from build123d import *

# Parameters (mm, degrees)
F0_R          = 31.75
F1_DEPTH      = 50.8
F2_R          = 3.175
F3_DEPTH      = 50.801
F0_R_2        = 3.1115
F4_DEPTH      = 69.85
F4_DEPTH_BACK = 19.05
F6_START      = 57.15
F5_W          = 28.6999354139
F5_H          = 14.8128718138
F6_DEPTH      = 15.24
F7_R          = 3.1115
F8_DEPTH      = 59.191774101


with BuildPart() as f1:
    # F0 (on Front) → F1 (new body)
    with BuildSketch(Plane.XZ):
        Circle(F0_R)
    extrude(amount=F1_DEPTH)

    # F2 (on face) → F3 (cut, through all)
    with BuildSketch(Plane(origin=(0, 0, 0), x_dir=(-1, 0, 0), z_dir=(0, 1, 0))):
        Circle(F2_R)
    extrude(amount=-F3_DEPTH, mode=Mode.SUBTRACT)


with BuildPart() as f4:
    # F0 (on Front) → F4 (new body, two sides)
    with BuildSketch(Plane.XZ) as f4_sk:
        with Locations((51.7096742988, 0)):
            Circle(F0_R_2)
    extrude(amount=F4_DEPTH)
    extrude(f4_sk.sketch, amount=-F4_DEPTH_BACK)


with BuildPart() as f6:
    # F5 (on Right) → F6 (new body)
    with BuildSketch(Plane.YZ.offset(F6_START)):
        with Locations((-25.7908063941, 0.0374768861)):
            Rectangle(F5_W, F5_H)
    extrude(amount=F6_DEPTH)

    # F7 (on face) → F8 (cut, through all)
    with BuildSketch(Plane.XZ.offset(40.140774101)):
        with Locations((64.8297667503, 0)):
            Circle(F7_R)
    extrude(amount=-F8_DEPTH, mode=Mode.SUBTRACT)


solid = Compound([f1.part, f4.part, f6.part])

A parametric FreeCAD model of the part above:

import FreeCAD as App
import Part
import Sketcher

V = App.Vector
Q = App.Units.Quantity

doc = App.newDocument("Part")
params = doc.addObject("Spreadsheet::Sheet", "Params")
for row, (alias, value) in enumerate([
    ("sketch1_diameter", "2.5 in"),
    ("pad1_length", "2 in"),
    ("sketch2_diameter", "0.25 in"),
    ("sketch3_diameter", "0.245 in"),
    ("pad2_length", "2.75 in"),
    ("pad2_length2", "0.75 in"),
    ("pad3_length", "0.6 in"),
    ("sketch5_diameter", "0.245 in"),
], start=1):
    params.set(f"A{row}", alias)
    params.set(f"B{row}", "=" + value)
    params.setAlias(f"B{row}", alias)

body = doc.addObject("PartDesign::Body", "Body")

# Sketch on XZ plane
sketch1 = doc.addObject("Sketcher::SketchObject", "Sketch")
body.addObject(sketch1)
sketch1.AttachmentSupport = (doc.XZ_Plane, [""])
sketch1.MapMode = "FlatFace"
sketch1.addGeometry(Part.Circle(V(0, 0, 0), V(0, 0, 1), 32), False)
sketch1.addConstraint([
    Sketcher.Constraint("Coincident", 0, 3, -1, 1),
    Sketcher.Constraint("Diameter", 0, Q("2.5 in")),
])
sketch1.setExpression("Constraints[1]", "Params.sketch1_diameter")
pad1 = doc.addObject("PartDesign::Pad", "Pad")
body.addObject(pad1)
pad1.Profile = sketch1
pad1.setExpression("Length", "Params.pad1_length")

# Sketch on XZ plane
sketch2 = doc.addObject("Sketcher::SketchObject", "Sketch001")
body.addObject(sketch2)
sketch2.AttachmentSupport = (doc.XZ_Plane, [""])
sketch2.MapMode = "FlatFace"
sketch2.addGeometry(Part.Circle(V(0, 0, 0), V(0, 0, 1), 3.2), False)
sketch2.addConstraint([
    Sketcher.Constraint("Coincident", 0, 3, -1, 1),
    Sketcher.Constraint("Diameter", 0, Q("0.25 in")),
])
sketch2.setExpression("Constraints[1]", "Params.sketch2_diameter")
pocket1 = doc.addObject("PartDesign::Pocket", "Pocket")
body.addObject(pocket1)
pocket1.Profile = sketch2
pocket1.Type = "ThroughAll"
pocket1.Reversed = True
body2 = doc.addObject("PartDesign::Body", "Body001")

# Sketch on XZ plane
sketch3 = doc.addObject("Sketcher::SketchObject", "Sketch002")
body2.addObject(sketch3)
sketch3.AttachmentSupport = (doc.getObject("XZ_Plane001"), [""])
sketch3.MapMode = "FlatFace"
sketch3.addGeometry(Part.Circle(V(51.7, 0, 0), V(0, 0, 1), 3.1), False)
sketch3.addConstraint([
    Sketcher.Constraint("PointOnObject", 0, 3, -1),
    Sketcher.Constraint("Diameter", 0, Q("0.245 in")),
    Sketcher.Constraint("DistanceX", -1, 1, 0, 3, 51.709674),
])
sketch3.setExpression("Constraints[1]", "Params.sketch3_diameter")
pad2 = doc.addObject("PartDesign::Pad", "Pad001")
body2.addObject(pad2)
pad2.Profile = sketch3
pad2.Type = "TwoLengths"
pad2.setExpression("Length", "Params.pad2_length")
pad2.setExpression("Length2", "Params.pad2_length2")
body3 = doc.addObject("PartDesign::Body", "Body002")

# Sketch on YZ plane
sketch4 = doc.addObject("Sketcher::SketchObject", "Sketch003")
body3.addObject(sketch4)
sketch4.AttachmentSupport = (doc.getObject("YZ_Plane002"), [""])
sketch4.MapMode = "FlatFace"
sketch4.AttachmentOffset = App.Placement(V(0, 0, 2.25 * 25.4), App.Rotation())
sketch4.addGeometry([
    Part.LineSegment(V(-40, 7, 0), V(-40, -7, 0)),
    Part.LineSegment(V(-40, -7, 0), V(-11, -7, 0)),
    Part.LineSegment(V(-11, -7, 0), V(-11, 7, 0)),
    Part.LineSegment(V(-11, 7, 0), V(-40, 7, 0)),
], False)
sketch4.addConstraint([
    Sketcher.Constraint("Coincident", 0, 2, 1, 1),
    Sketcher.Constraint("Coincident", 1, 2, 2, 1),
    Sketcher.Constraint("Coincident", 2, 2, 3, 1),
    Sketcher.Constraint("Coincident", 3, 2, 0, 1),
    Sketcher.Constraint("Vertical", 0),
    Sketcher.Constraint("Horizontal", 1),
    Sketcher.Constraint("Vertical", 2),
    Sketcher.Constraint("Horizontal", 3),
    Sketcher.Constraint("DistanceY", 0, 2, 0, 1, 14.812872),
    Sketcher.Constraint("DistanceX", 1, 1, 1, 2, 28.699935),
    Sketcher.Constraint("DistanceY", 0, 2, -1, 1, 7.368959),
    Sketcher.Constraint("DistanceX", 1, 2, -1, 1, 11.440839),
])
pad3 = doc.addObject("PartDesign::Pad", "Pad002")
body3.addObject(pad3)
pad3.Profile = sketch4
pad3.setExpression("Length", "Params.pad3_length")

# Sketch on XZ plane
sketch5 = doc.addObject("Sketcher::SketchObject", "Sketch004")
body3.addObject(sketch5)
sketch5.AttachmentSupport = (doc.getObject("XZ_Plane002"), [""])
sketch5.MapMode = "FlatFace"
sketch5.AttachmentOffset = App.Placement(V(0, 0, 40.140774), App.Rotation())
sketch5.addGeometry(Part.Circle(V(64.8, 0, 0), V(0, 0, 1), 3.1), False)
sketch5.addConstraint([
    Sketcher.Constraint("PointOnObject", 0, 3, -1),
    Sketcher.Constraint("Diameter", 0, Q("0.245 in")),
    Sketcher.Constraint("DistanceX", -1, 1, 0, 3, 64.829767),
])
sketch5.setExpression("Constraints[1]", "Params.sketch5_diameter")
pocket2 = doc.addObject("PartDesign::Pocket", "Pocket001")
body3.addObject(pocket2)
pocket2.Profile = sketch5
pocket2.Type = "ThroughAll"

doc.recompute()
